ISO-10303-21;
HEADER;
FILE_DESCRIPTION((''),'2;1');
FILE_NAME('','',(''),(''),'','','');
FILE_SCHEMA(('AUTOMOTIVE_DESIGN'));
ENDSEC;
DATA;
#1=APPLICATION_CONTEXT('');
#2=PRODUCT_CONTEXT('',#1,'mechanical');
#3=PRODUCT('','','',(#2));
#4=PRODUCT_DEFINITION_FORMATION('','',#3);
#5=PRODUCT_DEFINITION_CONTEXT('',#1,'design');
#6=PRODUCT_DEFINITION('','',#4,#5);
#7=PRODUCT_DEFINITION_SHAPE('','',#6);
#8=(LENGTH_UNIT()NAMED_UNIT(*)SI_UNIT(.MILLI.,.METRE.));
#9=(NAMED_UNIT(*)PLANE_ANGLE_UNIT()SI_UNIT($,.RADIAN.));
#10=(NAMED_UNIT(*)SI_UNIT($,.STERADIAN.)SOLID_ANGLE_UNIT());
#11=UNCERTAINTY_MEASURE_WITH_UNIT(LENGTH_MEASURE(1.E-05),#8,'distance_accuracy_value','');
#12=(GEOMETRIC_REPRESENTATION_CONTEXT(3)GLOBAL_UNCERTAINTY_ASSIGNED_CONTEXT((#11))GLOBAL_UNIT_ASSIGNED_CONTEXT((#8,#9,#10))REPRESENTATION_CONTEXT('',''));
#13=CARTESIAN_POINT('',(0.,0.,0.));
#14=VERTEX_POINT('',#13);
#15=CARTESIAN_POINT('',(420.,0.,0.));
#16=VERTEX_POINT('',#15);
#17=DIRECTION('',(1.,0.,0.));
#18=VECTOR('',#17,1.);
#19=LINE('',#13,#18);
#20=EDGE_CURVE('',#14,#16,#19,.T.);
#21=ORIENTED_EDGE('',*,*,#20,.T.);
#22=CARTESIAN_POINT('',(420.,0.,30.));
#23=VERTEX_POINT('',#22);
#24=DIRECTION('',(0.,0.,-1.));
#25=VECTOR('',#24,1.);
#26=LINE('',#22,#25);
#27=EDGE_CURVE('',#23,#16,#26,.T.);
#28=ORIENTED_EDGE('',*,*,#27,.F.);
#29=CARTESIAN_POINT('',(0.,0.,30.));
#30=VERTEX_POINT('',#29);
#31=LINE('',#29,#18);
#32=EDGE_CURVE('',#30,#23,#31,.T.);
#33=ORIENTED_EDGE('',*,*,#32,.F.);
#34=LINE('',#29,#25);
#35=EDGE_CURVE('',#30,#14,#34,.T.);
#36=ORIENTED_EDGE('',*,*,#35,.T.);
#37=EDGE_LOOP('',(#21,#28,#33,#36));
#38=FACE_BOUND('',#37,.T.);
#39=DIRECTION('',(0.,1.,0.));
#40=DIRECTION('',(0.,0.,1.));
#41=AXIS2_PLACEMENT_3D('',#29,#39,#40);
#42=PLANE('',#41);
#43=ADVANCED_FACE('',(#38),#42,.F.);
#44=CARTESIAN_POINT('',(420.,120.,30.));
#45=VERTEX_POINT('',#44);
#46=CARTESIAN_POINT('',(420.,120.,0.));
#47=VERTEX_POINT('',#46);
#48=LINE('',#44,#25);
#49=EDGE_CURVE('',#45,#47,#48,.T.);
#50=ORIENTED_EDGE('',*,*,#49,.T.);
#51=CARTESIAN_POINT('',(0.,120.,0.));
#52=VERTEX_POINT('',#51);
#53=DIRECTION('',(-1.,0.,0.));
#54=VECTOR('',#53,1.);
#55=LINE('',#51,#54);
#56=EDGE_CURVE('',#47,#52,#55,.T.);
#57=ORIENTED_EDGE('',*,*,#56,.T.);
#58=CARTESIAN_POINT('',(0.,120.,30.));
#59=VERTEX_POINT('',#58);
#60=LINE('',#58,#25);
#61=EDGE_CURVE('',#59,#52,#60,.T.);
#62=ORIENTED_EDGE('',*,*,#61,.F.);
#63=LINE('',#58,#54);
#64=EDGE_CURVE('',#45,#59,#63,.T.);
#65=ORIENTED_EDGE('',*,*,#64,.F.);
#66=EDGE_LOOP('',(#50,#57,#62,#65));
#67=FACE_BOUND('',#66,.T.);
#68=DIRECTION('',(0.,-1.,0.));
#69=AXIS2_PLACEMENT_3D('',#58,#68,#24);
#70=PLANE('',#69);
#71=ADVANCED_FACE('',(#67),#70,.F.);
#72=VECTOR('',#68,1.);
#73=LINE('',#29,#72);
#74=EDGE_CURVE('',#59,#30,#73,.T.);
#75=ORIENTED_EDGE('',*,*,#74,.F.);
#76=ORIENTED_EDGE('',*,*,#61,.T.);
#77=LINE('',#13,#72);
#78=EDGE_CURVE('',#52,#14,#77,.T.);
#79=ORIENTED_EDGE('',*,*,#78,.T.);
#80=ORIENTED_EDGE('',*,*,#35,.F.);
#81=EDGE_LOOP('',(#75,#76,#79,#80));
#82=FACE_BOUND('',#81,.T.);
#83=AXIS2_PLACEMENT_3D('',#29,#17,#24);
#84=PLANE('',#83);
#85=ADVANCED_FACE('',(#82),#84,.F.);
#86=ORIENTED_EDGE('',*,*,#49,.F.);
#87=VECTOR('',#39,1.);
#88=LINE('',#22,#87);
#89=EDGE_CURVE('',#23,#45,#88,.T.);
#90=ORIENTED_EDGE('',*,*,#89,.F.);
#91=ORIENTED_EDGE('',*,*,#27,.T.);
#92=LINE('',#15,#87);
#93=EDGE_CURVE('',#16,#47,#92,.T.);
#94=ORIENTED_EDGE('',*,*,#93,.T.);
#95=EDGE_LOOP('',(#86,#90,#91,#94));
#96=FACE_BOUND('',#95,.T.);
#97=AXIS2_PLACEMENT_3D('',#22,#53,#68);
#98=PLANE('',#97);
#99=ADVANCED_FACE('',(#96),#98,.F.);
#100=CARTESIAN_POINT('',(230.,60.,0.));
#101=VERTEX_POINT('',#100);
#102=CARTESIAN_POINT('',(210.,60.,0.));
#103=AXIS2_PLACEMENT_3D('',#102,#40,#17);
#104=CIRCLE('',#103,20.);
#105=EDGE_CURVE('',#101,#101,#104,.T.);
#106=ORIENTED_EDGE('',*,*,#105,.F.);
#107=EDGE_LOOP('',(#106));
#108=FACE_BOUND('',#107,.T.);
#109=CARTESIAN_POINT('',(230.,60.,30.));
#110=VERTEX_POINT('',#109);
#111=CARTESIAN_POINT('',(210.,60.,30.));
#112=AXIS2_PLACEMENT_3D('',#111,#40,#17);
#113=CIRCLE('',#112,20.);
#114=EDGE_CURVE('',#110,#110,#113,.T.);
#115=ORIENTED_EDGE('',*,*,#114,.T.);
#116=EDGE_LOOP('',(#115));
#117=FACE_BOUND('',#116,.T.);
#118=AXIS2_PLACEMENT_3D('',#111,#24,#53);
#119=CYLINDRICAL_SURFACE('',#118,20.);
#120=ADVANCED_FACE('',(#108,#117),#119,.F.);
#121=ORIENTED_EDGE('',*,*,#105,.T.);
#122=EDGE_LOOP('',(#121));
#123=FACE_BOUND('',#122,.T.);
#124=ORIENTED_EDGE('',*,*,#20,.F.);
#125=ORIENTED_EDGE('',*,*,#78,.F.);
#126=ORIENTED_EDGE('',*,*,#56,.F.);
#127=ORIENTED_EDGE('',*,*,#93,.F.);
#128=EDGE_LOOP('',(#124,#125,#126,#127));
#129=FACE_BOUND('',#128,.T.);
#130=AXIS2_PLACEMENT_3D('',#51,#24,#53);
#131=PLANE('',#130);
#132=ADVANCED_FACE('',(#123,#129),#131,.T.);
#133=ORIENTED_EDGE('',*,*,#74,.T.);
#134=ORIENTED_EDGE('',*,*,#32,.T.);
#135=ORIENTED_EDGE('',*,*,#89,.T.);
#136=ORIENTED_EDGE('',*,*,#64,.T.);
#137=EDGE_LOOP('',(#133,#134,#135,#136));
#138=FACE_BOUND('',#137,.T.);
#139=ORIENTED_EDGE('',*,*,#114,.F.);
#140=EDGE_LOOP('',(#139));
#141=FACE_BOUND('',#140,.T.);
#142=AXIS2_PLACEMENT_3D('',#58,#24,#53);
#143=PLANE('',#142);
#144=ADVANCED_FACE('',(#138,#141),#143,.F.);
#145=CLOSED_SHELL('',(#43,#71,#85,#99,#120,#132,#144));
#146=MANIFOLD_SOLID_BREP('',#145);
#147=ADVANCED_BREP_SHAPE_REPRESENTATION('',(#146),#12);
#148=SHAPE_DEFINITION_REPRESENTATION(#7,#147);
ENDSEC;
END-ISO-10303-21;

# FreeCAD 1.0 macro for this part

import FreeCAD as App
import Part
import Sketcher
Q = App.Units.Quantity


def add_polygon(sketch, points):
    """Adds a closed chain of lines whose ends are joined by coincident constraints."""
    first, n = sketch.GeometryCount, len(points)
    for a, b in zip(points, points[1:] + points[:1]):
        sketch.addGeometry(Part.LineSegment(App.Vector(*a, 0), App.Vector(*b, 0)), False)
    for i in range(n):
        sketch.addConstraint(Sketcher.Constraint("Coincident", first + i, 2, first + (i + 1) % n, 1))

doc = App.newDocument("Part")
body = doc.addObject("PartDesign::Body", "Body")

# Sketch on XY plane
sketch1 = doc.addObject("Sketcher::SketchObject", "Sketch")
body.addObject(sketch1)
sketch1.AttachmentSupport = (doc.XY_Plane, [""])
sketch1.MapMode = "FlatFace"
add_polygon(sketch1, [(0, 120), (0, 0), (420, 0), (420, 120)])  # lines 0-3
sketch1.addGeometry(Part.Circle(App.Vector(210, 60, 0), App.Vector(0, 0, 1), 20), False)  # 4
sketch1.addConstraint(Sketcher.Constraint("Vertical", 0))
sketch1.addConstraint(Sketcher.Constraint("Horizontal", 1))
sketch1.addConstraint(Sketcher.Constraint("Vertical", 2))
sketch1.addConstraint(Sketcher.Constraint("Horizontal", 3))
sketch1.addConstraint(Sketcher.Constraint("Coincident", 0, 2, -1, 1))
sketch1.addConstraint(Sketcher.Constraint("Diameter", 4, Q("40 mm")))
sketch1.addConstraint(Sketcher.Constraint("DistanceX", 1, 1, 1, 2, Q("420 mm")))
sketch1.addConstraint(Sketcher.Constraint("DistanceY", 0, 2, 0, 1, Q("120 mm")))
sketch1.addConstraint(Sketcher.Constraint("DistanceX", -1, 1, 4, 3, Q("210 mm")))
sketch1.addConstraint(Sketcher.Constraint("DistanceY", -1, 1, 4, 3, Q("60 mm")))
pad1 = doc.addObject("PartDesign::Pad", "Pad")
body.addObject(pad1)
pad1.Profile = sketch1
pad1.Length = 30

doc.recompute()
